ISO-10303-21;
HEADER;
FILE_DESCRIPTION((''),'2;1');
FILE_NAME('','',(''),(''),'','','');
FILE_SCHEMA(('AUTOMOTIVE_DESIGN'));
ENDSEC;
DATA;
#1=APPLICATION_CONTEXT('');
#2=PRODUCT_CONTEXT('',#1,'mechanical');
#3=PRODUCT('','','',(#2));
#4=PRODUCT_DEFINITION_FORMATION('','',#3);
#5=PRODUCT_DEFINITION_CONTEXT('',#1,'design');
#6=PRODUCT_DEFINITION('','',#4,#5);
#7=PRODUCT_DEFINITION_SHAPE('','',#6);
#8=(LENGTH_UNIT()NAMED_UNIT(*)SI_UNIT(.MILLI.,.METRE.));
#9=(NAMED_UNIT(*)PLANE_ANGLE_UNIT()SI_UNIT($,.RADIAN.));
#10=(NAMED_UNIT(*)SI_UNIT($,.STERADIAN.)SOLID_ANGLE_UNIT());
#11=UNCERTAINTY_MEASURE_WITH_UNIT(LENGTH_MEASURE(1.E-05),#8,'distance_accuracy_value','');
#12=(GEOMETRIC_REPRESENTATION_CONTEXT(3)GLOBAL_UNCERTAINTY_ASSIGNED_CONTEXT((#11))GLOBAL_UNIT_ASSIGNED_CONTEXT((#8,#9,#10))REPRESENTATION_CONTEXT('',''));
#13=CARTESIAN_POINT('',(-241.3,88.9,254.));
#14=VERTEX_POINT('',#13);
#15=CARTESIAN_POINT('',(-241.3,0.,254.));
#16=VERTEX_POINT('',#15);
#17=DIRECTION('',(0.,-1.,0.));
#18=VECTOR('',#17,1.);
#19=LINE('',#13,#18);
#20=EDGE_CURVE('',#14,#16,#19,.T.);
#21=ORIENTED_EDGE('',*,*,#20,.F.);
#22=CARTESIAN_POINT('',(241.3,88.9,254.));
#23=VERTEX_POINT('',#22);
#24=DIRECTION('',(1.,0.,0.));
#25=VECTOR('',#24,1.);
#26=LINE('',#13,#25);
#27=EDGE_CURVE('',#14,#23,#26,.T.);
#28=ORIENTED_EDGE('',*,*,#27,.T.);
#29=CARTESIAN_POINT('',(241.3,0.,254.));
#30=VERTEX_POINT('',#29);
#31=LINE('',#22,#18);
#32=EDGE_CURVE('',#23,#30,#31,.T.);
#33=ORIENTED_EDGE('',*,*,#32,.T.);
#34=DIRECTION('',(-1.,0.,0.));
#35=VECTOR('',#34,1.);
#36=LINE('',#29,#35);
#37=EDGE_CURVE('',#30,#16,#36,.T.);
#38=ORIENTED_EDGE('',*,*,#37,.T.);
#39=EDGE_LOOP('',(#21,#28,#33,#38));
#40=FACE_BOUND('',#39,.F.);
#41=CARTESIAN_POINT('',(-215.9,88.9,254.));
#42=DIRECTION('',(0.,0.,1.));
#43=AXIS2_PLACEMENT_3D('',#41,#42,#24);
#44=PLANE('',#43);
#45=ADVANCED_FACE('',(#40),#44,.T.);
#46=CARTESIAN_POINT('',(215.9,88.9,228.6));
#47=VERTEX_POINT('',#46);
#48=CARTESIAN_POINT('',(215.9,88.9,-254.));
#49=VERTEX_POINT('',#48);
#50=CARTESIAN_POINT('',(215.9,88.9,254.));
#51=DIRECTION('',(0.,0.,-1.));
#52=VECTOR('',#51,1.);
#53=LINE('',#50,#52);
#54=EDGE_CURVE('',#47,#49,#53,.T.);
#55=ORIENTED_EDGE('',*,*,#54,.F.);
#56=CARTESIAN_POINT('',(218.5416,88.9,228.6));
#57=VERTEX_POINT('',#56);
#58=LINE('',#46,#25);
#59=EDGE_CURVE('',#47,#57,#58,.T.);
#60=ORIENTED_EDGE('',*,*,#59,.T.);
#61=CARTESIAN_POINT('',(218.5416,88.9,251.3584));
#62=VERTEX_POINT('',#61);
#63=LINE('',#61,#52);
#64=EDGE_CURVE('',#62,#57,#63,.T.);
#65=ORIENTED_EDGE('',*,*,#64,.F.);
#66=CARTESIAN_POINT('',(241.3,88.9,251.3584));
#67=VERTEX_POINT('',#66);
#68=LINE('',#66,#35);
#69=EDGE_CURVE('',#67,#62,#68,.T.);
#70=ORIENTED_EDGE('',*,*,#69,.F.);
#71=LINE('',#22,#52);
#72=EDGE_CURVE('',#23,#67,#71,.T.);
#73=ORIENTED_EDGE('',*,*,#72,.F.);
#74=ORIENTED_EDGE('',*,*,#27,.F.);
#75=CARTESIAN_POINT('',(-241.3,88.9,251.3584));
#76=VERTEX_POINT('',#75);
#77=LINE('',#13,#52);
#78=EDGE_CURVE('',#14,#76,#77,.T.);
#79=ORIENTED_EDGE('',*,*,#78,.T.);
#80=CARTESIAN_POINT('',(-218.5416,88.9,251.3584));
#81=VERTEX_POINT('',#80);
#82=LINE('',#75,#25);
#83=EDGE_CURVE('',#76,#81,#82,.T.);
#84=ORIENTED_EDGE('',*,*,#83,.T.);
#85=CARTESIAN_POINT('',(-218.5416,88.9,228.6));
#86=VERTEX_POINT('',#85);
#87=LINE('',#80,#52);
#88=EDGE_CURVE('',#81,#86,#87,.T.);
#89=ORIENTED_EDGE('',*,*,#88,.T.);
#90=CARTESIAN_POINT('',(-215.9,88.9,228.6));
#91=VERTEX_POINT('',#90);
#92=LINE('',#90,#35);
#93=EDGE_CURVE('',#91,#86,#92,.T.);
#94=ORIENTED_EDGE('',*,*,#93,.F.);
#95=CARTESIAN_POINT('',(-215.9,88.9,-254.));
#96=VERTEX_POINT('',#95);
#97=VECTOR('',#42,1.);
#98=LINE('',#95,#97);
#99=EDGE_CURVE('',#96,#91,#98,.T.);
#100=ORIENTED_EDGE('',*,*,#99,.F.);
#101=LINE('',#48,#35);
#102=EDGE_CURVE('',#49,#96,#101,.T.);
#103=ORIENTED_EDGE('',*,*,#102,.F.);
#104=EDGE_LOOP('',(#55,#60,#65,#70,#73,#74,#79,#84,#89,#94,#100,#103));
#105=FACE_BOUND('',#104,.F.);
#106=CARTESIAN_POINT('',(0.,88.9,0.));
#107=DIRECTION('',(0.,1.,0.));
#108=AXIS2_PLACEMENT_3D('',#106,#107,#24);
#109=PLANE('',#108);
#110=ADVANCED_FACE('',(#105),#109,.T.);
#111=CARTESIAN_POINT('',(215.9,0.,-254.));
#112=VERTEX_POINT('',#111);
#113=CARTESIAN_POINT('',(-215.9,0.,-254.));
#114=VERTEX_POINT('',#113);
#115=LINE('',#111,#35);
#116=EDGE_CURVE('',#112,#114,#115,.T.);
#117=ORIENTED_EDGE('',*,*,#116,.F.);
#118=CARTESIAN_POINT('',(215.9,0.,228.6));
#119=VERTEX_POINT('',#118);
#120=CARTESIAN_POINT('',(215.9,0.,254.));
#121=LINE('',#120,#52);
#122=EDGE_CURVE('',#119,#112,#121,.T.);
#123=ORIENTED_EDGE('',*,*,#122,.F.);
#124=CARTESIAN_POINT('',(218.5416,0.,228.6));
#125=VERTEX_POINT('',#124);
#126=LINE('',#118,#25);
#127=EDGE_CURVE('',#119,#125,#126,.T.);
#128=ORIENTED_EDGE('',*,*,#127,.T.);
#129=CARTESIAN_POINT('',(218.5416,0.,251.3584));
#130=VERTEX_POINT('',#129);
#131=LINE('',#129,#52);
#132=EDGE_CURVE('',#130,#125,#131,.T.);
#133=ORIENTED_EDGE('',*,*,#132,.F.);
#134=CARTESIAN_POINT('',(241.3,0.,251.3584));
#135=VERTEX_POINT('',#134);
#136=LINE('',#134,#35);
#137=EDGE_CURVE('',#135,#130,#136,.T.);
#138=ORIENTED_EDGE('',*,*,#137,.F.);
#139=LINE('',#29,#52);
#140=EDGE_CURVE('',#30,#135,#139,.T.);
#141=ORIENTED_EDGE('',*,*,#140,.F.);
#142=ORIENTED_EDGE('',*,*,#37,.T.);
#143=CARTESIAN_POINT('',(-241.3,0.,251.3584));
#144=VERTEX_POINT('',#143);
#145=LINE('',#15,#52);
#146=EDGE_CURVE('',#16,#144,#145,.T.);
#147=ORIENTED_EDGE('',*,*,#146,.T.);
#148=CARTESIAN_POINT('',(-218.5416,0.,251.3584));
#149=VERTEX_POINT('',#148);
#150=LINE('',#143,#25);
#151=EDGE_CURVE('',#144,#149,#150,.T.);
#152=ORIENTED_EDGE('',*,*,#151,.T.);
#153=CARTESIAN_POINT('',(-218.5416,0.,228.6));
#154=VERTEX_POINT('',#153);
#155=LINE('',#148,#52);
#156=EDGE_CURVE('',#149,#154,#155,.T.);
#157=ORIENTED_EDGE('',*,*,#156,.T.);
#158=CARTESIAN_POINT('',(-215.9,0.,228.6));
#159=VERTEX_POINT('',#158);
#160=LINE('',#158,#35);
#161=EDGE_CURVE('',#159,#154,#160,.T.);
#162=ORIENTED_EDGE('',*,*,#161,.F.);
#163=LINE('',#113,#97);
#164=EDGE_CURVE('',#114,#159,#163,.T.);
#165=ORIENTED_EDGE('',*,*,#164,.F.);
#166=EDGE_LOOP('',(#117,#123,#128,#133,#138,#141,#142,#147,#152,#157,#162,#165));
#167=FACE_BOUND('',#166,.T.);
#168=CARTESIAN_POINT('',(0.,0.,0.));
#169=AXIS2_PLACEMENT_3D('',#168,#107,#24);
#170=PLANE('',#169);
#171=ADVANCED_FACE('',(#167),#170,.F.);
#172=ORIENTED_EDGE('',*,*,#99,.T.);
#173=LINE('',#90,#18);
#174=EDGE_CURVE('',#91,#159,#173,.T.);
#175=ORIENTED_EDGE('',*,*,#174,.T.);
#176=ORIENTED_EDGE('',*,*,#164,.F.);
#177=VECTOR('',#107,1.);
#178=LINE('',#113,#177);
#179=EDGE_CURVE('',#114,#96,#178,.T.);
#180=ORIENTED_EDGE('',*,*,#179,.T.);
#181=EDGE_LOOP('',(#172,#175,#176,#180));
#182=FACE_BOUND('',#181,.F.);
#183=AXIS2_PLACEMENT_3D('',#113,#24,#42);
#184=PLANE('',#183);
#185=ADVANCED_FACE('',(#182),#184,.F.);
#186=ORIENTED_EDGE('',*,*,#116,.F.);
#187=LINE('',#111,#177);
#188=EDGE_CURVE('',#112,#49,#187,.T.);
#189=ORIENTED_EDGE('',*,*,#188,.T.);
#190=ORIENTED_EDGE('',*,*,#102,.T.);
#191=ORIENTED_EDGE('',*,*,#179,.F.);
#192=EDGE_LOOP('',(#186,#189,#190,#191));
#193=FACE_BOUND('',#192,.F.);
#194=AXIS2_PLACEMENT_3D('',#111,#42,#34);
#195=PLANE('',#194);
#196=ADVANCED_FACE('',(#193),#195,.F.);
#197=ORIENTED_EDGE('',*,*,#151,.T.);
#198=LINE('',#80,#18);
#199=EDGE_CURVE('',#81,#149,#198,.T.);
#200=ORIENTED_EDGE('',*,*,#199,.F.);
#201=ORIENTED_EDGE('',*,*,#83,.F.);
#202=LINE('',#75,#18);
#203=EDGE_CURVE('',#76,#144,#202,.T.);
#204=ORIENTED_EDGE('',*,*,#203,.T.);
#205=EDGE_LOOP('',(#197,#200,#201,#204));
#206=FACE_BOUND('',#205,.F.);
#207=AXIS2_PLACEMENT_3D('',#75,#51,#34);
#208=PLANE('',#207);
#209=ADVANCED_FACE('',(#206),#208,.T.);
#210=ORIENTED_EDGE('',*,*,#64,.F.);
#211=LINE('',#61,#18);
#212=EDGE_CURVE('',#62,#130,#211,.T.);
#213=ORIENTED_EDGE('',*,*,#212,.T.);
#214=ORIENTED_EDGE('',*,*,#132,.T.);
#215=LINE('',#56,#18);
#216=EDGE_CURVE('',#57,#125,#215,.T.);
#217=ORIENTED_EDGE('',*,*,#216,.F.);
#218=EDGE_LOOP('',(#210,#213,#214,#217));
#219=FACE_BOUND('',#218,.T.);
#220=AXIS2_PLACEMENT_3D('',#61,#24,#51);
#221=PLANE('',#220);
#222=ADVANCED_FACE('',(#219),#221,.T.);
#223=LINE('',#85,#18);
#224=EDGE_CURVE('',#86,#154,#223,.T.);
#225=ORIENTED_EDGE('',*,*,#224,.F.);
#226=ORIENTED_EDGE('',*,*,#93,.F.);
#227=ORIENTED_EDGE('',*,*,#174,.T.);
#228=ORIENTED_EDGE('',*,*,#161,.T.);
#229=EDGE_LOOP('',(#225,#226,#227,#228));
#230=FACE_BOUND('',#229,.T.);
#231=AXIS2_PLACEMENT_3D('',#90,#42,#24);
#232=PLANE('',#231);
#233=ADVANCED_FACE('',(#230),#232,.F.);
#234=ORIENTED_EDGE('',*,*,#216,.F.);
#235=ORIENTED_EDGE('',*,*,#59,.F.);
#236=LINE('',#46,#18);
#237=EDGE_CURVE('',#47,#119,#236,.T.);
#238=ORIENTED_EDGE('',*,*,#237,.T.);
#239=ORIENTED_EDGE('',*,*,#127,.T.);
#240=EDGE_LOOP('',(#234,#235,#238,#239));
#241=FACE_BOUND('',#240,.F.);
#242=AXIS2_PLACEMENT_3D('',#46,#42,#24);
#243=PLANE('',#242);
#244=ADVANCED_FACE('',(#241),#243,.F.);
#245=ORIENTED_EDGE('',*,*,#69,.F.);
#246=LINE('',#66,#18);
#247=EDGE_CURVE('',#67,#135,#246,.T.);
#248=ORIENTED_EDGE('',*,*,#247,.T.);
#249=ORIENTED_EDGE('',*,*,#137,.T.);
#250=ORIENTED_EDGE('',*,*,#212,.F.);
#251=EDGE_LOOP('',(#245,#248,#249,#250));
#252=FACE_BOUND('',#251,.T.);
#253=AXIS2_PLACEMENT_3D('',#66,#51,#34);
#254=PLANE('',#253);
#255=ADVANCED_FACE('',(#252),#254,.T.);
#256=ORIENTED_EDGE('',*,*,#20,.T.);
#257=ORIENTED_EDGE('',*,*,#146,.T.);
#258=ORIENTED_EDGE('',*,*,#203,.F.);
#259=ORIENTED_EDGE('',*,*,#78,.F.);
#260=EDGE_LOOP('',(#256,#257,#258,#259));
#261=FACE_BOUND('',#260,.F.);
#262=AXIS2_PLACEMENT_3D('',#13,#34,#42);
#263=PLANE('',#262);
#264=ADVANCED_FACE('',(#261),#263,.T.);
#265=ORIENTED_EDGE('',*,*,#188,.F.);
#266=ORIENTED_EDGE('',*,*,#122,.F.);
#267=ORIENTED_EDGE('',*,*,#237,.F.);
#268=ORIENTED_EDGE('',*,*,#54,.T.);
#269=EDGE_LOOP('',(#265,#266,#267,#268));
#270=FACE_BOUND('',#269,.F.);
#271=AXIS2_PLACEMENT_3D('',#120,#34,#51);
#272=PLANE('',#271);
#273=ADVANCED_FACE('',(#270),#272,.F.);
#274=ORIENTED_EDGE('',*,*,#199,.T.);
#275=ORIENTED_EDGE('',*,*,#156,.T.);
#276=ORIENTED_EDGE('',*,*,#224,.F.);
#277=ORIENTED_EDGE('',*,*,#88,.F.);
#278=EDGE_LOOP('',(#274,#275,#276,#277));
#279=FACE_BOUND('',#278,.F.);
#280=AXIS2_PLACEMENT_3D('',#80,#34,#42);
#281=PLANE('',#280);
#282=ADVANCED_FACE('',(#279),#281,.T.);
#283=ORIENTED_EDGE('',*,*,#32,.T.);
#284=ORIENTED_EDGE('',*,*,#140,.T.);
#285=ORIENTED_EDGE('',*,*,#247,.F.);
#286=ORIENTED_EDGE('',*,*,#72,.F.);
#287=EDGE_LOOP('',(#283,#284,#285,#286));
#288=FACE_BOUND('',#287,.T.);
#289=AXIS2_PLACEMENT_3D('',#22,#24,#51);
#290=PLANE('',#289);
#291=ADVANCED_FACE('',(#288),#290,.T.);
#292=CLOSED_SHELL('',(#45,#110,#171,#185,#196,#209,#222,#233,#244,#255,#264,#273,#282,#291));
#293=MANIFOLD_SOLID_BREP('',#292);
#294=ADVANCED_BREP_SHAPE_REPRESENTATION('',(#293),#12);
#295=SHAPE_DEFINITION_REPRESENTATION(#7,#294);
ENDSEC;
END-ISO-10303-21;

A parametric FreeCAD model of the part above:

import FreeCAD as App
import Part
import Sketcher
from FreeCAD import Vector
Q = App.Units.Quantity


def add_polygon(sketch, points):
    """Adds a closed chain of lines whose ends are joined by coincident constraints."""
    first, n = sketch.GeometryCount, len(points)
    for a, b in zip(points, points[1:] + points[:1]):
        sketch.addGeometry(Part.LineSegment(App.Vector(*a, 0), App.Vector(*b, 0)), False)
    for i in range(n):
        sketch.addConstraint(Sketcher.Constraint("Coincident", first + i, 2, first + (i + 1) % n, 1))

doc = App.newDocument("Part")
body = doc.addObject("PartDesign::Body", "Body")

sketch1 = body.newObject("Sketcher::SketchObject", "Sketch")
sketch1.AttachmentSupport = (doc.getObject("XZ_Plane"), [""])
sketch1.MapMode = "FlatFace"
add_polygon(sketch1, [(-216, -254), (-216, 254), (216, 254), (216, -254)])
sketch1.addConstraint(Sketcher.Constraint("Vertical", 0))
sketch1.addConstraint(Sketcher.Constraint("Horizontal", 1))
sketch1.addConstraint(Sketcher.Constraint("Vertical", 2))
sketch1.addConstraint(Sketcher.Constraint("Horizontal", 3))
sketch1.addConstraint(Sketcher.Constraint("Symmetric", 0, 2, 2, 2, -1, 1))
sketch1.addConstraint(Sketcher.Constraint("DistanceX", 1, 1, 1, 2, Q("17 in")))
sketch1.addConstraint(Sketcher.Constraint("DistanceY", 0, 1, 0, 2, Q("20 in")))
pad1 = body.newObject("PartDesign::Pad", "Pad")
pad1.Profile = sketch1
pad1.Length = Q("3.5 in")
pad1.Reversed = True

sketch2 = body.newObject("Sketcher::SketchObject", "Sketch001")
sketch2.AttachmentSupport = (doc.getObject("XZ_Plane"), [""])
sketch2.MapMode = "FlatFace"
sketch2.AttachmentOffset = App.Placement(Vector(0, 0, -3.5 * 25.4), App.Rotation())
add_polygon(sketch2, [(218.5, 228.6), (215.9, 228.6), (215.9, 254), (241.3, 254), (241.3, 251.4), (218.5, 251.4)])
sketch2.addConstraint(Sketcher.Constraint("Horizontal", 0))
sketch2.addConstraint(Sketcher.Constraint("Vertical", 1))
sketch2.addConstraint(Sketcher.Constraint("Horizontal", 2))
sketch2.addConstraint(Sketcher.Constraint("Vertical", 3))
sketch2.addConstraint(Sketcher.Constraint("Horizontal", 4))
sketch2.addConstraint(Sketcher.Constraint("Vertical", 5))
sketch2.addConstraint(Sketcher.Constraint("Equal", 2, 1))
sketch2.addConstraint(Sketcher.Constraint("Equal", 0, 3))
sketch2.addConstraint(Sketcher.Constraint("DistanceX", 2, 1, 2, 2, Q("1 in")))
sketch2.addConstraint(Sketcher.Constraint("DistanceX", 0, 2, 0, 1, Q("0.104 in")))
sketch2.addConstraint(Sketcher.Constraint("DistanceY", -1, 1, 0, 2, Q("9 in")))
sketch2.addConstraint(Sketcher.Constraint("DistanceX", -1, 1, 0, 2, Q("8.5 in")))
pad2 = body.newObject("PartDesign::Pad", "Pad001")
pad2.Profile = sketch2
pad2.Length = Q("3.5 in")
doc.recompute()

mirrored = body.newObject("PartDesign::Mirrored", "Mirrored")
mirrored.Originals = [pad2]
mirrored.MirrorPlane = (doc.getObject("YZ_Plane"), [""])
body.Tip = mirrored

doc.recompute()
